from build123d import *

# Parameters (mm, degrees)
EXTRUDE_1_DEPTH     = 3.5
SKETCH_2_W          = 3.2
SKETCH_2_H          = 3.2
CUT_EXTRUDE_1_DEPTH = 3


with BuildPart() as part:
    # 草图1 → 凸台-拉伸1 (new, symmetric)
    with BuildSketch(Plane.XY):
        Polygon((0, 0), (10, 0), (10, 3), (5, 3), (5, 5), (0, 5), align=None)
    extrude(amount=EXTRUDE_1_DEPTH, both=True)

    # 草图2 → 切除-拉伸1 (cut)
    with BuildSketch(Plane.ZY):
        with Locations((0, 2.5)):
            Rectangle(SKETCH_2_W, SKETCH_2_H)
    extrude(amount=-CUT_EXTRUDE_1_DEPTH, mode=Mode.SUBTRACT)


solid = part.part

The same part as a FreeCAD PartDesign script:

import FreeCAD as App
import Part
import Sketcher


def add_polygon(sketch, points):
    """Adds a closed chain of lines whose ends are joined by coincident constraints."""
    first, n = sketch.GeometryCount, len(points)
    for a, b in zip(points, points[1:] + points[:1]):
        sketch.addGeometry(Part.LineSegment(App.Vector(*a, 0), App.Vector(*b, 0)), False)
    for i in range(n):
        sketch.addConstraint(Sketcher.Constraint("Coincident", first + i, 2, first + (i + 1) % n, 1))

doc = App.newDocument("Part")
params = doc.addObject("Spreadsheet::Sheet", "Params")
for row, (alias, value) in enumerate([
    ("sketch1_width", "10 mm"),
    ("sketch1_height", "3 mm"),
    ("pad1_length", "7 mm"),
    ("sketch2_width", "3.2 mm"),
    ("pocket1_length", "3 mm"),
], start=1):
    params.set(f"A{row}", alias)
    params.set(f"B{row}", "=" + value)
    params.setAlias(f"B{row}", alias)

body = doc.addObject("PartDesign::Body", "Body")

# Sketch on XY plane
sketch1 = body.newObject("Sketcher::SketchObject", "Sketch")
sketch1.AttachmentSupport = (doc.getObject("XY_Plane"), [""])
sketch1.MapMode = "FlatFace"
add_polygon(sketch1, [(0, 0), (10, 0), (10, 3), (5, 3), (5, 5), (0, 5)])  # lines 0-5
sketch1.addConstraint([
    Sketcher.Constraint("Horizontal", 0),
    Sketcher.Constraint("Vertical", 1),
    Sketcher.Constraint("Horizontal", 2),
    Sketcher.Constraint("Vertical", 3),
    Sketcher.Constraint("Horizontal", 4),
    Sketcher.Constraint("Vertical", 5),
    Sketcher.Constraint("Coincident", 5, 2, -1, 1),
    Sketcher.Constraint("Equal", 2, 4),
    Sketcher.Constraint("Equal", 4, 5),
    Sketcher.Constraint("DistanceX", 0, 1, 0, 2, 10.0),
    Sketcher.Constraint("DistanceY", 1, 1, 1, 2, 3.0),
])
sketch1.setExpression("Constraints[15]", "Params.sketch1_width")
sketch1.setExpression("Constraints[16]", "Params.sketch1_height")
pad1 = body.newObject("PartDesign::Pad", "Pad")
pad1.Profile = sketch1
pad1.setExpression("Length", "Params.pad1_length")
pad1.Midplane = True

# Sketch on YZ plane
sketch2 = body.newObject("Sketcher::SketchObject", "Sketch001")
sketch2.AttachmentSupport = (doc.getObject("YZ_Plane"), [""])
sketch2.MapMode = "FlatFace"
add_polygon(sketch2, [(4.1, -1.6), (0.9, -1.6), (0.9, 1.6), (4.1, 1.6)])  # lines 0-3
sketch2.addConstraint([
    Sketcher.Constraint("Horizontal", 0),
    Sketcher.Constraint("Vertical", 1),
    Sketcher.Constraint("Horizontal", 2),
    Sketcher.Constraint("Vertical", 3),
    Sketcher.Constraint("Equal", 2, 1),
    Sketcher.Constraint("DistanceX", 0, 2, 0, 1, 3.2),
    Sketcher.Constraint("DistanceX", -1, 1, 0, 2, 0.9),
    Sketcher.Constraint("DistanceY", 0, 2, -1, 1, 1.6),
])
sketch2.setExpression("Constraints[9]", "Params.sketch2_width")
pocket1 = body.newObject("PartDesign::Pocket", "Pocket")
pocket1.Profile = sketch2
pocket1.setExpression("Length", "Params.pocket1_length")
pocket1.Reversed = True

doc.recompute()
